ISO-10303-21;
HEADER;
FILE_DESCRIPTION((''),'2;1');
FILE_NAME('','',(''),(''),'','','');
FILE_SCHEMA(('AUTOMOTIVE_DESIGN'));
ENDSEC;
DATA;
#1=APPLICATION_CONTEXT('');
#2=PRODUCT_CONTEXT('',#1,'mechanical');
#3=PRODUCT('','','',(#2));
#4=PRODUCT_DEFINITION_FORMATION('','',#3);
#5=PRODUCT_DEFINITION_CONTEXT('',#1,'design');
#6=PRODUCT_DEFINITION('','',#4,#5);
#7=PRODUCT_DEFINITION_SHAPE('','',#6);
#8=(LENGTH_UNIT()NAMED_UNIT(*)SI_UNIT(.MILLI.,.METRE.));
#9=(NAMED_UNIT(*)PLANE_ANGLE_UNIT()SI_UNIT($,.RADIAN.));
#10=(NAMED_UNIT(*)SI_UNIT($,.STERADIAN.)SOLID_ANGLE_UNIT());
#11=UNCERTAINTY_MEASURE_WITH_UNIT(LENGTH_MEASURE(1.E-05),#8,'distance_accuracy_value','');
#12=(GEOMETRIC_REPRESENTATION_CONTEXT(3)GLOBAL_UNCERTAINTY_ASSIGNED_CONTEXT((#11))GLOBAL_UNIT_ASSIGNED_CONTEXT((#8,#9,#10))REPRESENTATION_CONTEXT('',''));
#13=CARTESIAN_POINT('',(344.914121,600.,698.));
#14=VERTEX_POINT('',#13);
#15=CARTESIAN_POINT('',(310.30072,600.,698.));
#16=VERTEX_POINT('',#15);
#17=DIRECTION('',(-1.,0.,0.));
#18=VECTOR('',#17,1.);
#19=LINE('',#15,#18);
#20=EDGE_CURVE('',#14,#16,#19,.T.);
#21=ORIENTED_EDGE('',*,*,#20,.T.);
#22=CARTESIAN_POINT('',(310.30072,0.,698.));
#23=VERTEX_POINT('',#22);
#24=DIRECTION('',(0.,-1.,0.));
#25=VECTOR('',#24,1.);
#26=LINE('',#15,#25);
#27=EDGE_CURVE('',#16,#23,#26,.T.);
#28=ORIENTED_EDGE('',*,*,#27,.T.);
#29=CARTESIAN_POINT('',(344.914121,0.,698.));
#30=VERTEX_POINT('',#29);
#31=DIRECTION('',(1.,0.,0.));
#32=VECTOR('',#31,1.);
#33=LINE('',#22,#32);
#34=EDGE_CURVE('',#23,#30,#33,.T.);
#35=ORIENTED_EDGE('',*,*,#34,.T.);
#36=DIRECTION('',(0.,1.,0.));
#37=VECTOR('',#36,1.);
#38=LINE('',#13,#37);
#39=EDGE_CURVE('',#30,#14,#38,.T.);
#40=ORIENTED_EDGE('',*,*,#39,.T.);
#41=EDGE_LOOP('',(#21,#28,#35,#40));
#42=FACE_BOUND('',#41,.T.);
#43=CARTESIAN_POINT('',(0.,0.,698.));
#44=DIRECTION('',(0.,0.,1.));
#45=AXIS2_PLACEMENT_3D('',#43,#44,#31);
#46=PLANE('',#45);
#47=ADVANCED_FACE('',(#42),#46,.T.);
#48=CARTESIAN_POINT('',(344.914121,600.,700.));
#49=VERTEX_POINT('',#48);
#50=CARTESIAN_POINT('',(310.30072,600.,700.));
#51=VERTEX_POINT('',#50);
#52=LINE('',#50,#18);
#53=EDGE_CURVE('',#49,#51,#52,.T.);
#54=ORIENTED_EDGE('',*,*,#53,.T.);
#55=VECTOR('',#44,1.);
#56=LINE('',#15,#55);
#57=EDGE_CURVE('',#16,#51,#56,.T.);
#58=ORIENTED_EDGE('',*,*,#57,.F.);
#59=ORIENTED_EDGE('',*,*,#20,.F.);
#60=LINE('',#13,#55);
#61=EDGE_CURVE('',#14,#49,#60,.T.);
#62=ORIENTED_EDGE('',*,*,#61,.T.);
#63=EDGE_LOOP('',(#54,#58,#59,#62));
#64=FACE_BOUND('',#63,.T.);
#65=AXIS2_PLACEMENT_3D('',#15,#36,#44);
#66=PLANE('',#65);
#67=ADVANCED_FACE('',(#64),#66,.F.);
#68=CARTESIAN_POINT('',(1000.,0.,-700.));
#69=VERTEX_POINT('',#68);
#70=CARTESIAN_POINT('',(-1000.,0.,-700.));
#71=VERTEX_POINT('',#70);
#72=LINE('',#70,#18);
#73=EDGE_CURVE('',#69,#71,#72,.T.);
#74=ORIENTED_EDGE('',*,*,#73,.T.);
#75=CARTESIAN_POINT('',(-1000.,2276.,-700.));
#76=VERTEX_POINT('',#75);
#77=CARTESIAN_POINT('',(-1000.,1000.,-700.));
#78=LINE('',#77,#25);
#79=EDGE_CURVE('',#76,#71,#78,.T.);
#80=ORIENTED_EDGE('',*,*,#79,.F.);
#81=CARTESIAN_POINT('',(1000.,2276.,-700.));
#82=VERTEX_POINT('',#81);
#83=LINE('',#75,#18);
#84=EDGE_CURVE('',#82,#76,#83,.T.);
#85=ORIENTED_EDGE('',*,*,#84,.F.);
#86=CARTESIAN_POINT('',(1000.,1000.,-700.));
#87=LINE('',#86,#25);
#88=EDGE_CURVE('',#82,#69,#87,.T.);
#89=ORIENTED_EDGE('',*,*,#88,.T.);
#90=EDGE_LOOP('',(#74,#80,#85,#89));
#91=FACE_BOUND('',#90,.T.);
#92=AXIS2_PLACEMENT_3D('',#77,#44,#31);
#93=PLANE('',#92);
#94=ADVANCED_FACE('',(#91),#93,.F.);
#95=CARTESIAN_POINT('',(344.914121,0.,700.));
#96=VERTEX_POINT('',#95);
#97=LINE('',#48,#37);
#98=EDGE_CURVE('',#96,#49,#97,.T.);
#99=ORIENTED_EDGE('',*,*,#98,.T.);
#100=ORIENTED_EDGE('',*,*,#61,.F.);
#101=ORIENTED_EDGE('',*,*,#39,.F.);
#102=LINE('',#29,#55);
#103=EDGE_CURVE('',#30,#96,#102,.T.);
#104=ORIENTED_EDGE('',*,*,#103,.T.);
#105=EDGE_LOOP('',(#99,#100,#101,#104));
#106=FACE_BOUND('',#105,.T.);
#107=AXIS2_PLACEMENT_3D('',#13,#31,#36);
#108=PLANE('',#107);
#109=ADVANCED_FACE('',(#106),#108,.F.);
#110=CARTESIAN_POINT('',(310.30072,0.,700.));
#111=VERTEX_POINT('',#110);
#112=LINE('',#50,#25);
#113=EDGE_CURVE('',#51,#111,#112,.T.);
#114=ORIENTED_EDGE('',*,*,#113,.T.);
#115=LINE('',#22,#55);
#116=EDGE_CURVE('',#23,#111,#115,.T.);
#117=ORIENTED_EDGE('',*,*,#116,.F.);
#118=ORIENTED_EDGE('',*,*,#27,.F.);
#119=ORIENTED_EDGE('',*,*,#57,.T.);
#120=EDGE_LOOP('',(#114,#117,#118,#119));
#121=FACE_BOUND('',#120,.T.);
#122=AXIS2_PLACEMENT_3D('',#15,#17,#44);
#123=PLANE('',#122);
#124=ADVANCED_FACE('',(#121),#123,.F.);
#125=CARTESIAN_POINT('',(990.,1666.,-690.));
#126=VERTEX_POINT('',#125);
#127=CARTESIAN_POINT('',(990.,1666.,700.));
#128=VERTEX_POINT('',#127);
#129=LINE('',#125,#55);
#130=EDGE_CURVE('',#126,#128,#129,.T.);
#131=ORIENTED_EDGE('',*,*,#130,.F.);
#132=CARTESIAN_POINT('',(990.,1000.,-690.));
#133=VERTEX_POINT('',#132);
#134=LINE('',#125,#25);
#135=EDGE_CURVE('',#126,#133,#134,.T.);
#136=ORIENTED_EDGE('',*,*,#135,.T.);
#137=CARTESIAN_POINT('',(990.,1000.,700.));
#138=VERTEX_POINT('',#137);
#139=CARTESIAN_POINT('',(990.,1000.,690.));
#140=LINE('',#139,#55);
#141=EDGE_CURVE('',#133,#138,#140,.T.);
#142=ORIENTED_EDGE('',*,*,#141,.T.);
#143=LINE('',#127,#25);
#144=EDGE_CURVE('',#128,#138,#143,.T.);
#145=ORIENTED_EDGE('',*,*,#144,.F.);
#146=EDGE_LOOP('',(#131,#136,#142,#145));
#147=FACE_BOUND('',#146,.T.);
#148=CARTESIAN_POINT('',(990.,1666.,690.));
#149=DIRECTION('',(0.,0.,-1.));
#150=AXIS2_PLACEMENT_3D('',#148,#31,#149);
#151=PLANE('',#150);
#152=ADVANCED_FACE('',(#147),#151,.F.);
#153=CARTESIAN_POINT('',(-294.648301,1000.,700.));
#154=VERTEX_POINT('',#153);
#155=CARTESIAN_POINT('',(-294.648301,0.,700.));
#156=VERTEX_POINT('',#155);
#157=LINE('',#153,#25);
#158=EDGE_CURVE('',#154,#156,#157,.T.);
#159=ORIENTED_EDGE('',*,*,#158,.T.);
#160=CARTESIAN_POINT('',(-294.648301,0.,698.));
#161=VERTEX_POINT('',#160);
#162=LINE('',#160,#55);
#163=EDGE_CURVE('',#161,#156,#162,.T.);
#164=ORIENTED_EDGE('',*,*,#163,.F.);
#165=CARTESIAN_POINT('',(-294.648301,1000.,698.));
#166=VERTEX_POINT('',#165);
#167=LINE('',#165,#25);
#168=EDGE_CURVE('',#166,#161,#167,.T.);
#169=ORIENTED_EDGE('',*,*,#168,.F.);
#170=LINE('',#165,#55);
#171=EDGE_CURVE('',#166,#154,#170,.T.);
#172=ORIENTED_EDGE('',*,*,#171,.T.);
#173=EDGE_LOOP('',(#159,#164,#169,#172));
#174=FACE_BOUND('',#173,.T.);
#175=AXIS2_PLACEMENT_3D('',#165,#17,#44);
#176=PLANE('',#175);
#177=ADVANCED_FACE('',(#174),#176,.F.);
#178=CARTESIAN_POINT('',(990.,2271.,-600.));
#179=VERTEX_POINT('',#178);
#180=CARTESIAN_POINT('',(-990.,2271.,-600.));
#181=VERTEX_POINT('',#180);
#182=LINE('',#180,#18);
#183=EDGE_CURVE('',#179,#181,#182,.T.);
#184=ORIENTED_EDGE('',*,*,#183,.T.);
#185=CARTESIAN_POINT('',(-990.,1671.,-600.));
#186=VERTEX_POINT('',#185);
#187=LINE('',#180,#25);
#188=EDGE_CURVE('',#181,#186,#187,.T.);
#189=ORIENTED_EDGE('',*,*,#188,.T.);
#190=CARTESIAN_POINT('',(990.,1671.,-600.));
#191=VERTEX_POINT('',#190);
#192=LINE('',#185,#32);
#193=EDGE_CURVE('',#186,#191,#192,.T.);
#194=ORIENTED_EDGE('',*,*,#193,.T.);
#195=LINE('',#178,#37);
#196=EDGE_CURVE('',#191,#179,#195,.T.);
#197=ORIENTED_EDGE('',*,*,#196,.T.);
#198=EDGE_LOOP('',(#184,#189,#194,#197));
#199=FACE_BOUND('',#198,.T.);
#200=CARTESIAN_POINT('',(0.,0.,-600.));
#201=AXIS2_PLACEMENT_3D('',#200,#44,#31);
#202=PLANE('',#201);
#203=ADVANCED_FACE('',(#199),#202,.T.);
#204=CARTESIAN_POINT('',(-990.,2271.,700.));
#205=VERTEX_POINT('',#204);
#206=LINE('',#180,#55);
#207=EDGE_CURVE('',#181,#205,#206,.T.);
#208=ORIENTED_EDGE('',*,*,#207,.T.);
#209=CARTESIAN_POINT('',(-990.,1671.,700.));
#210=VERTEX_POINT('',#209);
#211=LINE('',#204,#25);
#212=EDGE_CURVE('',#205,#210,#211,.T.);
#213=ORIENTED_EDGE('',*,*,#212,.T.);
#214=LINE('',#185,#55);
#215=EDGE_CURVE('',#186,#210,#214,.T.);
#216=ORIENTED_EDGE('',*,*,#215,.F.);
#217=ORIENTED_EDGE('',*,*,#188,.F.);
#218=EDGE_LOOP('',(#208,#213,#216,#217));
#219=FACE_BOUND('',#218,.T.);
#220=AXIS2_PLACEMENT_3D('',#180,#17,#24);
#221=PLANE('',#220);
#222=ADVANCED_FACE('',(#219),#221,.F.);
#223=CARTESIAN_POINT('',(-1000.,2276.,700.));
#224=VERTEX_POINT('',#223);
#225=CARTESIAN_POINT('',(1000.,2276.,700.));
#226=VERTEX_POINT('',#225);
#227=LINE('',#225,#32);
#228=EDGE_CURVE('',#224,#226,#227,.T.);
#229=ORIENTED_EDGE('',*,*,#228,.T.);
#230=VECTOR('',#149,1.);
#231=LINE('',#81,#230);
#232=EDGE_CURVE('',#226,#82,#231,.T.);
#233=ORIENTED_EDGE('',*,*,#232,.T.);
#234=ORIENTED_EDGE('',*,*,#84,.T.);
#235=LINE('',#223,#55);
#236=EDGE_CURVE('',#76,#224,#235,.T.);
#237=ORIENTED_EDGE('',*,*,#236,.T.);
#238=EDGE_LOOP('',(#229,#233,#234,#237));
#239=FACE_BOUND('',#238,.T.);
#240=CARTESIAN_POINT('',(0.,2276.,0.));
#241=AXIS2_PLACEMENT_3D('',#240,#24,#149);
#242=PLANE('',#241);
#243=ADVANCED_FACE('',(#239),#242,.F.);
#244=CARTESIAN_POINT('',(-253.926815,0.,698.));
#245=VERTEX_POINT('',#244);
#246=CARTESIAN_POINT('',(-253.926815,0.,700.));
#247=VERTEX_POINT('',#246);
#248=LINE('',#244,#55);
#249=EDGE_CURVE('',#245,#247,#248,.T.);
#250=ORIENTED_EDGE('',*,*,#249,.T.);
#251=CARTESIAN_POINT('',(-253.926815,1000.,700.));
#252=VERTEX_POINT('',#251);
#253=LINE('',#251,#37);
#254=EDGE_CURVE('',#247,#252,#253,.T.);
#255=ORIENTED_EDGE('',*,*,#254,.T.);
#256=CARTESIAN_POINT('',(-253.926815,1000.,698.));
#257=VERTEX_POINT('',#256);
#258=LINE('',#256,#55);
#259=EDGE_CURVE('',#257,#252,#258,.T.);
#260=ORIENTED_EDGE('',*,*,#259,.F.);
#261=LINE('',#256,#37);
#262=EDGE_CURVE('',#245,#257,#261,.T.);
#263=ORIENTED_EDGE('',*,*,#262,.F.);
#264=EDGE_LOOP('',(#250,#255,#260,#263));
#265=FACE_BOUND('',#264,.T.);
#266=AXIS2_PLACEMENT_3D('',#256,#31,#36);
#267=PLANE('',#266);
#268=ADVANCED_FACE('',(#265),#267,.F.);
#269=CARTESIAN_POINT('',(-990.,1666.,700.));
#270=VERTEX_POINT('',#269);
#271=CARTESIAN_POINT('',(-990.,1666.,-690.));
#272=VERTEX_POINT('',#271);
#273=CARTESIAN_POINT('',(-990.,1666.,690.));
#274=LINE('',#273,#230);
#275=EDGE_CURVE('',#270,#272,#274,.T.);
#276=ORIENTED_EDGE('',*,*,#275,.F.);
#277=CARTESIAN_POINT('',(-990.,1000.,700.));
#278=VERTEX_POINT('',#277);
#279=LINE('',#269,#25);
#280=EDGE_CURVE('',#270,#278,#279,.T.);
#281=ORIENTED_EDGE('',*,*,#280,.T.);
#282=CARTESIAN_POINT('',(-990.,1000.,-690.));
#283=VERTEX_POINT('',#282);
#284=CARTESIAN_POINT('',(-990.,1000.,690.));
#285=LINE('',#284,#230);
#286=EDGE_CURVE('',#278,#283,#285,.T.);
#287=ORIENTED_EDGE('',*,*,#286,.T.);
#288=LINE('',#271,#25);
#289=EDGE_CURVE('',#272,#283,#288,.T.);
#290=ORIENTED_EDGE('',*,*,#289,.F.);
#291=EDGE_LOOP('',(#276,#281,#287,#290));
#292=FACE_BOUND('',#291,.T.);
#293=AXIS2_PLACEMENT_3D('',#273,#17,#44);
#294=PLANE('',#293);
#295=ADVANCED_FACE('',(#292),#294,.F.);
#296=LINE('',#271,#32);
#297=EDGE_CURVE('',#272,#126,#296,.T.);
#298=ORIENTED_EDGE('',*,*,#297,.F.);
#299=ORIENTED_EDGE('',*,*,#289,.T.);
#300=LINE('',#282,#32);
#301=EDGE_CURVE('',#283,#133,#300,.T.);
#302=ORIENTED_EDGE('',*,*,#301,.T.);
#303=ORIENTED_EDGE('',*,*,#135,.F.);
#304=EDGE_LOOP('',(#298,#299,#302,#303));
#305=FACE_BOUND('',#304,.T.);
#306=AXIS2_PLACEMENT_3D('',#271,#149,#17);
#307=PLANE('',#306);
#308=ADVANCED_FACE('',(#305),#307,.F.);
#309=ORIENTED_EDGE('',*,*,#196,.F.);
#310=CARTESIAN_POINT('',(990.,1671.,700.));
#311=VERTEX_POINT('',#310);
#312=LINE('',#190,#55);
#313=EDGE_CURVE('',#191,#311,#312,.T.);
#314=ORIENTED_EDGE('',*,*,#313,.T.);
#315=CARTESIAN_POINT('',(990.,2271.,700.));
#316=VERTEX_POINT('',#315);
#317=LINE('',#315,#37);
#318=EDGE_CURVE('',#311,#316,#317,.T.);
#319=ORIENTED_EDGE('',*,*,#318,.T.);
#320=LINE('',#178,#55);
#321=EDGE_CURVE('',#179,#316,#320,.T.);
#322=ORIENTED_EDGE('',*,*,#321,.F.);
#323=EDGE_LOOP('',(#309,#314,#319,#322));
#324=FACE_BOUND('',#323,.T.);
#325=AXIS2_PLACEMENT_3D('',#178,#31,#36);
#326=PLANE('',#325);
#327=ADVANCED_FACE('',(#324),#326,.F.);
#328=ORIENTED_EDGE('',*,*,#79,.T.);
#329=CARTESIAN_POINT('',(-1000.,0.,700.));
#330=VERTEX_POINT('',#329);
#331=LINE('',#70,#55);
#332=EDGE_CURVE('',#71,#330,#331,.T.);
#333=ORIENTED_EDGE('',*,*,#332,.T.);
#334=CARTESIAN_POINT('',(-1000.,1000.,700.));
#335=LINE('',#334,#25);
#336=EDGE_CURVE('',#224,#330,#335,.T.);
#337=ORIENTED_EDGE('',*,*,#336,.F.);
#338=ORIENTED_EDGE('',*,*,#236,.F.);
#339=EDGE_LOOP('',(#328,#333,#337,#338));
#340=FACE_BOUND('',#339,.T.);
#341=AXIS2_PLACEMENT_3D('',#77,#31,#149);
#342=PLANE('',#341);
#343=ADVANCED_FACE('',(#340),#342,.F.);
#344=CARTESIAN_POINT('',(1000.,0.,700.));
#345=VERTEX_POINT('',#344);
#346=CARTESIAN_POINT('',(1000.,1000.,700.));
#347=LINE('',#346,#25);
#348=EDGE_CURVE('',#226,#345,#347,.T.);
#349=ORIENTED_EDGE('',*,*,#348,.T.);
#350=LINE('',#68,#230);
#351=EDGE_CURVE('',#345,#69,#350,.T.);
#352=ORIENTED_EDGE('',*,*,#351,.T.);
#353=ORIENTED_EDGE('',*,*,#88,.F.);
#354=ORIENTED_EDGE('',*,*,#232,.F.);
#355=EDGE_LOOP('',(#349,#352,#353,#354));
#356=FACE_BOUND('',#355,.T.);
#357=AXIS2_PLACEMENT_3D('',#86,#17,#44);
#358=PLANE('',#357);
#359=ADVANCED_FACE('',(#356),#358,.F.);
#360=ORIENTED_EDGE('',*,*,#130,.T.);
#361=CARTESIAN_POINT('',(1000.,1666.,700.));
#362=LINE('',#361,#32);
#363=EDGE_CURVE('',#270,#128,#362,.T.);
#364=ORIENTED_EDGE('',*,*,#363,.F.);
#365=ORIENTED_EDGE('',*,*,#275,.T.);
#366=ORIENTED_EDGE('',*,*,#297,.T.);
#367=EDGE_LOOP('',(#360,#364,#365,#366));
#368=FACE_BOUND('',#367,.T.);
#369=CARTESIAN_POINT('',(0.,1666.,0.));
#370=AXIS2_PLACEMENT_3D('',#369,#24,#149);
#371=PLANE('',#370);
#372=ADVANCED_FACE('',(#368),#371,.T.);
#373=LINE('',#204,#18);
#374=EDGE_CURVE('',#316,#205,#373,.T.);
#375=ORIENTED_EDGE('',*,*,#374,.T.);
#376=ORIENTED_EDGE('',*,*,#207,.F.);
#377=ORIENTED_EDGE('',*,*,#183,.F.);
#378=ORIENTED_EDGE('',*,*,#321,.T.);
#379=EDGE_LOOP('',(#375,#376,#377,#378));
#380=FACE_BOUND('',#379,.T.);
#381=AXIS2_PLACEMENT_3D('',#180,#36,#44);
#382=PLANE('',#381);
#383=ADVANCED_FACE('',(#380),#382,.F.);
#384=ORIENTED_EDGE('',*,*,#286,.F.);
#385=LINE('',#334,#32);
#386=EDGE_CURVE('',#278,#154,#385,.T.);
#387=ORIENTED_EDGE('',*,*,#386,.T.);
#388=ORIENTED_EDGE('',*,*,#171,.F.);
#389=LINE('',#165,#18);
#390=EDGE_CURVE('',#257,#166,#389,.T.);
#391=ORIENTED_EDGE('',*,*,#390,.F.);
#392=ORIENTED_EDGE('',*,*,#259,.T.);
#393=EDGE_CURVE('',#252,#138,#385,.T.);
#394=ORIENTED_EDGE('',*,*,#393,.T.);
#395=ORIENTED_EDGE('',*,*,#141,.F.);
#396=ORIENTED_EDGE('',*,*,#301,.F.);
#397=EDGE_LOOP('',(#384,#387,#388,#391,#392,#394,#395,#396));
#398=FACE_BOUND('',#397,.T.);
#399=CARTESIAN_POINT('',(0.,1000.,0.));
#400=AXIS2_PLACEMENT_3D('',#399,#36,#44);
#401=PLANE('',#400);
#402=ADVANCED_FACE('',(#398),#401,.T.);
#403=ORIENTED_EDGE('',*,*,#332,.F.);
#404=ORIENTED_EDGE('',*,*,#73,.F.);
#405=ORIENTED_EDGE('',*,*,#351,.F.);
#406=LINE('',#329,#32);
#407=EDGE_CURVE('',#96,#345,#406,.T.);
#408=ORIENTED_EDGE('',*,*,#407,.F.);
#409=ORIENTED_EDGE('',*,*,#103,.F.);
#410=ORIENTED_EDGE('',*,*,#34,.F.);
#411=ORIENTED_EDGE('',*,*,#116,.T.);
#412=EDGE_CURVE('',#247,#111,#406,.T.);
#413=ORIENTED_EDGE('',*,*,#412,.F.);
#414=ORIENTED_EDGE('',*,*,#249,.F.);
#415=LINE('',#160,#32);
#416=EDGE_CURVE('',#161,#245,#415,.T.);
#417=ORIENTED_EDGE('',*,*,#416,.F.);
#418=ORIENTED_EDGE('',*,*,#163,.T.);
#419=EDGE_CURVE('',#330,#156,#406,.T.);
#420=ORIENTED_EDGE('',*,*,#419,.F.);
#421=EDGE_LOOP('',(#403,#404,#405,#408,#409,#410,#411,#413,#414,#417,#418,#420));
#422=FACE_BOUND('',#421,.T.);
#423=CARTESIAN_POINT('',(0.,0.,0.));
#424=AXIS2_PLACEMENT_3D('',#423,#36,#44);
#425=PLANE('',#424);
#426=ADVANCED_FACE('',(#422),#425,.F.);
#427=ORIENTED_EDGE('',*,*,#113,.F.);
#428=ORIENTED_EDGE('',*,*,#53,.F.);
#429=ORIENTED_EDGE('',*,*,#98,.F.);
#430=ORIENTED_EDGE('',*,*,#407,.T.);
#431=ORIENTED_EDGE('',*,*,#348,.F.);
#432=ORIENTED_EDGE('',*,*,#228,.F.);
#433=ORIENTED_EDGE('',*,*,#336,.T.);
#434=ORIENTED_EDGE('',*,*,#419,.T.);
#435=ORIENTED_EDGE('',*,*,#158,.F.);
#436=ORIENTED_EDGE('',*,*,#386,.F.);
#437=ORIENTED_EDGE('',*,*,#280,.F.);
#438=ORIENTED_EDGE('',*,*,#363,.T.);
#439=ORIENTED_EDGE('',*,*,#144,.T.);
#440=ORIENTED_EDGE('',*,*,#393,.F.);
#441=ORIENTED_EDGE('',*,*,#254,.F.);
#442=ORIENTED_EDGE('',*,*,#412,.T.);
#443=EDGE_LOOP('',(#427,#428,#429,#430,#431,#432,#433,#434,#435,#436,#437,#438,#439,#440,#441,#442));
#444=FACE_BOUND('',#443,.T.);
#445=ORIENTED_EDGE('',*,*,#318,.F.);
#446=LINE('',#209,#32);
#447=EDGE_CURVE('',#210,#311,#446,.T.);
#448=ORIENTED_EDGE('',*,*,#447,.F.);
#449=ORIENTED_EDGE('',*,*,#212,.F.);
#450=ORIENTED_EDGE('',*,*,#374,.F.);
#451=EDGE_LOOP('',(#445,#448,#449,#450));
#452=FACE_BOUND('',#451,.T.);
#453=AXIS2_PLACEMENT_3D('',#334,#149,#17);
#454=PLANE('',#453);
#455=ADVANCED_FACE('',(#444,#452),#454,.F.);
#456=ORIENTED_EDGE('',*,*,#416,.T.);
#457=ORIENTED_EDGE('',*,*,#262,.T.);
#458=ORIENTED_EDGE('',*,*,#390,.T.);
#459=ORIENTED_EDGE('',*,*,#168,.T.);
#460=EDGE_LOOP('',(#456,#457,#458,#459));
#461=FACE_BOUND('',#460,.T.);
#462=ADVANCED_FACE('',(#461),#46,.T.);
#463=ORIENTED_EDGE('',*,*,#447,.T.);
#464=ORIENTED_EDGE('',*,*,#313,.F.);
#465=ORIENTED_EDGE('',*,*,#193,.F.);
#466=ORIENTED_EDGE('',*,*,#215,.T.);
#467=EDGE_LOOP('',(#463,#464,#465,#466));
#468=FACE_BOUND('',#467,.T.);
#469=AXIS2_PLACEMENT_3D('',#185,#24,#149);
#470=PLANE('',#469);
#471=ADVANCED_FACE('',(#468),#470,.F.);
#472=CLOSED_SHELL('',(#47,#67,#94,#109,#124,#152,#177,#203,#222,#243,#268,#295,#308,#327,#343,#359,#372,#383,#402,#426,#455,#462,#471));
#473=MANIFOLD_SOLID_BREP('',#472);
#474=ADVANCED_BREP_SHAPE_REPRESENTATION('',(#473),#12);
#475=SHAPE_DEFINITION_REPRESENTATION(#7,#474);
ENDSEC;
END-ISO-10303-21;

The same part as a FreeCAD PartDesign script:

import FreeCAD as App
import Part
import Sketcher

V = App.Vector


def add_polygon(sketch, points):
    """Adds a closed chain of lines whose ends are joined by coincident constraints."""
    first, n = sketch.GeometryCount, len(points)
    for a, b in zip(points, points[1:] + points[:1]):
        sketch.addGeometry(Part.LineSegment(App.Vector(*a, 0), App.Vector(*b, 0)), False)
    for i in range(n):
        sketch.addConstraint(Sketcher.Constraint("Coincident", first + i, 2, first + (i + 1) % n, 1))

doc = App.newDocument("Part")
body = doc.addObject("PartDesign::Body", "Body")

sketch1 = body.newObject("Sketcher::SketchObject", "Sketch")
sketch1.AttachmentSupport = (doc.getObject("XZ_Plane"), [""])
sketch1.MapMode = "FlatFace"
add_polygon(sketch1, [(-1000, -700), (-1000, 700), (1000, 700), (1000, -700)])
sketch1.addConstraint([
    Sketcher.Constraint("Vertical", 0),
    Sketcher.Constraint("Horizontal", 1),
    Sketcher.Constraint("Vertical", 2),
    Sketcher.Constraint("Horizontal", 3),
    Sketcher.Constraint("Symmetric", 0, 2, 2, 2, -1, 1),
    Sketcher.Constraint("DistanceX", 1, 1, 1, 2, 2000.0),
    Sketcher.Constraint("DistanceY", 0, 1, 0, 2, 1400.0),
])
pad1 = body.newObject("PartDesign::Pad", "Pad")
pad1.Profile = sketch1
pad1.Length = 1000
pad1.Reversed = True

sketch2 = body.newObject("Sketcher::SketchObject", "Sketch001")
sketch2.AttachmentSupport = (doc.getObject("XY_Plane"), [""])
sketch2.MapMode = "FlatFace"
sketch2.AttachmentOffset = App.Placement(V(0, 0, 700), App.Rotation())
add_polygon(sketch2, [(-295, 1000), (-295, 0), (-254, 0), (-254, 1000)])
add_polygon(sketch2, [(310, 600), (310, 0), (345, 0), (345, 600)])
sketch2.addConstraint([
    Sketcher.Constraint("Vertical", 0),
    Sketcher.Constraint("Horizontal", 1),
    Sketcher.Constraint("Vertical", 2),
    Sketcher.Constraint("Horizontal", 3),
    Sketcher.Constraint("Vertical", 4),
    Sketcher.Constraint("Horizontal", 5),
    Sketcher.Constraint("Vertical", 6),
    Sketcher.Constraint("Horizontal", 7),
    Sketcher.Constraint("PointOnObject", 0, 2, -1),
    Sketcher.Constraint("PointOnObject", 4, 2, -1),
    Sketcher.Constraint("DistanceY", 0, 2, 0, 1, 1000.0),
    Sketcher.Constraint("DistanceY", 4, 2, 4, 1, 600.0),
    Sketcher.Constraint("DistanceX", 5, 1, 5, 2, 34.613401),
    Sketcher.Constraint("DistanceX", 0, 2, -1, 1, 294.648301),
    Sketcher.Constraint("DistanceX", 1, 1, 1, 2, 40.721487),
    Sketcher.Constraint("DistanceX", -1, 1, 4, 2, 310.30072),
])
pocket1 = body.newObject("PartDesign::Pocket", "Pocket")
pocket1.Profile = sketch2
pocket1.Length = 2

sketch3 = body.newObject("Sketcher::SketchObject", "Sketch002")
sketch3.AttachmentSupport = (doc.getObject("XZ_Plane"), [""])
sketch3.MapMode = "FlatFace"
sketch3.AttachmentOffset = App.Placement(V(0, 0, -1000), App.Rotation())
add_polygon(sketch3, [(990, 700), (1000, 700), (1000, -700), (-1000, -700), (-1000, 700), (-990, 700), (-990, -690), (990, -690)])
sketch3.addConstraint([
    Sketcher.Constraint("Horizontal", 0),
    Sketcher.Constraint("Vertical", 1),
    Sketcher.Constraint("Horizontal", 2),
    Sketcher.Constraint("Vertical", 3),
    Sketcher.Constraint("Horizontal", 4),
    Sketcher.Constraint("Vertical", 5),
    Sketcher.Constraint("Horizontal", 6),
    Sketcher.Constraint("Vertical", 7),
    Sketcher.Constraint("Symmetric", 0, 2, 2, 2, -1, 1),
    Sketcher.Constraint("Symmetric", 4, 2, 7, 2, -2),
    Sketcher.Constraint("DistanceX", 0, 1, 0, 2, 10.0),
    Sketcher.Constraint("DistanceX", 2, 2, 2, 1, 2000.0),
    Sketcher.Constraint("DistanceY", 1, 2, 1, 1, 1400.0),
    Sketcher.Constraint("DistanceY", 5, 2, 5, 1, 1390.0),
])
pad2 = body.newObject("PartDesign::Pad", "Pad001")
pad2.Profile = sketch3
pad2.Length = 666
pad2.Reversed = True

sketch4 = body.newObject("Sketcher::SketchObject", "Sketch003")
sketch4.AttachmentSupport = (doc.getObject("XZ_Plane"), [""])
sketch4.MapMode = "FlatFace"
sketch4.AttachmentOffset = App.Placement(V(0, 0, -1666), App.Rotation())
add_polygon(sketch4, [(-1000, -700), (-1000, 700), (1000, 700), (1000, -700)])
sketch4.addConstraint([
    Sketcher.Constraint("Vertical", 0),
    Sketcher.Constraint("Horizontal", 1),
    Sketcher.Constraint("Vertical", 2),
    Sketcher.Constraint("Horizontal", 3),
    Sketcher.Constraint("Symmetric", 0, 2, 2, 2, -1, 1),
    Sketcher.Constraint("DistanceX", 1, 1, 1, 2, 2000.0),
    Sketcher.Constraint("DistanceY", 0, 1, 0, 2, 1400.0),
])
pad3 = body.newObject("PartDesign::Pad", "Pad002")
pad3.Profile = sketch4
pad3.Length = 610
pad3.Reversed = True

sketch5 = body.newObject("Sketcher::SketchObject", "Sketch004")
sketch5.AttachmentSupport = (doc.getObject("XY_Plane"), [""])
sketch5.MapMode = "FlatFace"
sketch5.AttachmentOffset = App.Placement(V(0, 0, 700), App.Rotation())
add_polygon(sketch5, [(-990, 2271), (-990, 1671), (990, 1671), (990, 2271)])
sketch5.addConstraint([
    Sketcher.Constraint("Vertical", 0),
    Sketcher.Constraint("Horizontal", 1),
    Sketcher.Constraint("Vertical", 2),
    Sketcher.Constraint("Horizontal", 3),
    Sketcher.Constraint("DistanceX", 1, 1, 1, 2, 1980.0),
    Sketcher.Constraint("DistanceY", 0, 2, 0, 1, 600.0),
    Sketcher.Constraint("DistanceX", 0, 2, -1, 1, 990.0),
    Sketcher.Constraint("DistanceY", -1, 1, 0, 2, 1671.0),
])
pocket2 = body.newObject("PartDesign::Pocket", "Pocket001")
pocket2.Profile = sketch5
pocket2.Length = 1300

doc.recompute()
